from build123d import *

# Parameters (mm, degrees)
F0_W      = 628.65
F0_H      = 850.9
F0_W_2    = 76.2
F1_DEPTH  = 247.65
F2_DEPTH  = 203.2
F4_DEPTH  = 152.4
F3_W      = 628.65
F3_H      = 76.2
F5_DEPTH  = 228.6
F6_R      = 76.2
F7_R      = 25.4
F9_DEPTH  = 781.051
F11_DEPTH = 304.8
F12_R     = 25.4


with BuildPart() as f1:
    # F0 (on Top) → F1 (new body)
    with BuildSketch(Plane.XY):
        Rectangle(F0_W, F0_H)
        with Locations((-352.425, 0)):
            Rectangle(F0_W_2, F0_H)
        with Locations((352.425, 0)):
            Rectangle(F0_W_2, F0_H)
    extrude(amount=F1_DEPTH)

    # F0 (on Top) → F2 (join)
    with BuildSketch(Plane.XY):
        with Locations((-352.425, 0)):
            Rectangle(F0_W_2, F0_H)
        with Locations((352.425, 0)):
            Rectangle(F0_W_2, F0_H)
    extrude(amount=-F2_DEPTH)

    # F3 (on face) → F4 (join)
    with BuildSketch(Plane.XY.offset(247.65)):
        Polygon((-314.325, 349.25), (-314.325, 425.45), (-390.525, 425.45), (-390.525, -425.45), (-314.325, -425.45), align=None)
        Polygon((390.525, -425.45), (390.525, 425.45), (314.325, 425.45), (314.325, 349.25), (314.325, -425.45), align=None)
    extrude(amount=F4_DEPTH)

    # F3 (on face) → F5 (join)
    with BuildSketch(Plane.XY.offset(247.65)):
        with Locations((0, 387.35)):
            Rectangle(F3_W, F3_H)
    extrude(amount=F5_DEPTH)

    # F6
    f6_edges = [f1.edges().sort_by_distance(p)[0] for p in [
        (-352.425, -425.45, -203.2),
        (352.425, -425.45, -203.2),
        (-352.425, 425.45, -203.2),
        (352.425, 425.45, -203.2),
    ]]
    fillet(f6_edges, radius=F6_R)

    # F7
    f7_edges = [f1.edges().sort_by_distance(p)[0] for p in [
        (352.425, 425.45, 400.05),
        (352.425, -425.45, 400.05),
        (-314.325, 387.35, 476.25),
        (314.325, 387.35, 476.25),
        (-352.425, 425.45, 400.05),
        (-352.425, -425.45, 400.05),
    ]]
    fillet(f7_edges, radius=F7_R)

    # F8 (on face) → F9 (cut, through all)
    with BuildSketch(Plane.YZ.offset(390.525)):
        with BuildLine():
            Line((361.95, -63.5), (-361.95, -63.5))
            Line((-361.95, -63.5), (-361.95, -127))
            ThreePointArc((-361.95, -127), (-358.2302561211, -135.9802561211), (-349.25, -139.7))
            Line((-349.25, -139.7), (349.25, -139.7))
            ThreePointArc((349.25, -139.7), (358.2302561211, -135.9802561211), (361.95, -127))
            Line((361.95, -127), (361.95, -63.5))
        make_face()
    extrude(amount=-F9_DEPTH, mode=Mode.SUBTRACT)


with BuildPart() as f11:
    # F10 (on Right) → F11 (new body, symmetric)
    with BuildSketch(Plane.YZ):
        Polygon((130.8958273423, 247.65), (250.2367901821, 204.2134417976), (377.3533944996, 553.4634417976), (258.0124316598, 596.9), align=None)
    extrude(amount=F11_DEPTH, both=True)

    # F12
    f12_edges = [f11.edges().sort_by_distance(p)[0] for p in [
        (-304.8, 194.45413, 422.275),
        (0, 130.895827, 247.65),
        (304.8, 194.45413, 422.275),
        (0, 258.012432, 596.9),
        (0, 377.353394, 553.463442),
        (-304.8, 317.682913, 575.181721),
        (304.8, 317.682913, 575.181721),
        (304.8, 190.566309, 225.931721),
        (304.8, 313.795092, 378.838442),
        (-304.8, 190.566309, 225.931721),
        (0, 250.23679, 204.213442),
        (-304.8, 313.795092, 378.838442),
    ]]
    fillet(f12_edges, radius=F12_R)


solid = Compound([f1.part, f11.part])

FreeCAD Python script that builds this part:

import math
import FreeCAD as App
import Part
import Sketcher
Q = App.Units.Quantity


def edges_at(feature, points):
    """Names of the edges that pass closest to the given points."""
    edges = feature.Shape.Edges
    near = lambda p: min(range(len(edges)), key=lambda i: edges[i].distToShape(Part.Vertex(*p))[0])
    return sorted({f"Edge{near(p) + 1}" for p in points})


def add_polygon(sketch, points):
    """Adds a closed chain of lines whose ends are joined by coincident constraints."""
    first, n = sketch.GeometryCount, len(points)
    for a, b in zip(points, points[1:] + points[:1]):
        sketch.addGeometry(Part.LineSegment(App.Vector(*a, 0), App.Vector(*b, 0)), False)
    for i in range(n):
        sketch.addConstraint(Sketcher.Constraint("Coincident", first + i, 2, first + (i + 1) % n, 1))

doc = App.newDocument("Part")
body = doc.addObject("PartDesign::Body", "Body")

sketch1 = body.newObject("Sketcher::SketchObject", "Sketch")
sketch1.AttachmentSupport = (doc.getObject("XY_Plane"), [""])
sketch1.MapMode = "FlatFace"
add_polygon(sketch1, [(-391, 425), (-391, -425), (391, -425), (391, 425)])
sketch1.addConstraint(Sketcher.Constraint("Vertical", 0))
sketch1.addConstraint(Sketcher.Constraint("Horizontal", 1))
sketch1.addConstraint(Sketcher.Constraint("Vertical", 2))
sketch1.addConstraint(Sketcher.Constraint("Horizontal", 3))
sketch1.addConstraint(Sketcher.Constraint("Symmetric", 0, 2, 2, 2, -1, 1))
sketch1.addConstraint(Sketcher.Constraint("DistanceY", 0, 2, 0, 1, Q("33.5 in")))
sketch1.addConstraint(Sketcher.Constraint("DistanceX", 1, 1, 1, 2, Q("30.75 in")))
pad1 = body.newObject("PartDesign::Pad", "Pad")
pad1.Profile = sketch1
pad1.Length = Q("9.75 in")

sketch2 = body.newObject("Sketcher::SketchObject", "Sketch001")
sketch2.AttachmentSupport = (doc.getObject("XY_Plane"), [""])
sketch2.MapMode = "FlatFace"
add_polygon(sketch2, [(-391, 425), (-391, -425), (-314, -425), (-314, 425)])
add_polygon(sketch2, [(314, 425), (314, -425), (391, -425), (391, 425)])
sketch2.addConstraint(Sketcher.Constraint("Vertical", 0))
sketch2.addConstraint(Sketcher.Constraint("Horizontal", 1))
sketch2.addConstraint(Sketcher.Constraint("Vertical", 2))
sketch2.addConstraint(Sketcher.Constraint("Horizontal", 3))
sketch2.addConstraint(Sketcher.Constraint("Vertical", 4))
sketch2.addConstraint(Sketcher.Constraint("Horizontal", 5))
sketch2.addConstraint(Sketcher.Constraint("Vertical", 6))
sketch2.addConstraint(Sketcher.Constraint("Horizontal", 7))
sketch2.addConstraint(Sketcher.Constraint("Symmetric", 2, 2, 4, 2, -1, 1))
sketch2.addConstraint(Sketcher.Constraint("Symmetric", 0, 2, 6, 2, -1, 1))
sketch2.addConstraint(Sketcher.Constraint("Horizontal", 1, 2, 4, 2))
sketch2.addConstraint(Sketcher.Constraint("DistanceX", 1, 1, 1, 2, Q("3 in")))
sketch2.addConstraint(Sketcher.Constraint("DistanceY", 0, 2, 0, 1, Q("33.5 in")))
sketch2.addConstraint(Sketcher.Constraint("DistanceX", 1, 2, 4, 2, Q("24.75 in")))
pad2 = body.newObject("PartDesign::Pad", "Pad001")
pad2.Profile = sketch2
pad2.Length = Q("8 in")
pad2.Reversed = True

sketch3 = body.newObject("Sketcher::SketchObject", "Sketch002")
sketch3.AttachmentSupport = (doc.getObject("XY_Plane"), [""])
sketch3.MapMode = "FlatFace"
sketch3.AttachmentOffset = App.Placement(App.Vector(0, 0, 9.75 * 25.4), App.Rotation())
add_polygon(sketch3, [(-314, 425), (-391, 425), (-391, -425), (-314, -425)])
add_polygon(sketch3, [(391, -425), (391, 425), (314, 425), (314, -425)])
sketch3.addConstraint(Sketcher.Constraint("Horizontal", 0))
sketch3.addConstraint(Sketcher.Constraint("Vertical", 1))
sketch3.addConstraint(Sketcher.Constraint("Horizontal", 2))
sketch3.addConstraint(Sketcher.Constraint("Vertical", 3))
sketch3.addConstraint(Sketcher.Constraint("Vertical", 4))
sketch3.addConstraint(Sketcher.Constraint("Horizontal", 5))
sketch3.addConstraint(Sketcher.Constraint("Vertical", 6))
sketch3.addConstraint(Sketcher.Constraint("Horizontal", 7))
sketch3.addConstraint(Sketcher.Constraint("Symmetric", 1, 2, 4, 2, -1, 1))
sketch3.addConstraint(Sketcher.Constraint("Symmetric", 3, 2, 6, 2, -1, 1))
sketch3.addConstraint(Sketcher.Constraint("Horizontal", 3, 2, 4, 2))
sketch3.addConstraint(Sketcher.Constraint("DistanceX", 0, 2, 0, 1, Q("3 in")))
sketch3.addConstraint(Sketcher.Constraint("DistanceY", 1, 2, 1, 1, Q("33.5 in")))
sketch3.addConstraint(Sketcher.Constraint("DistanceX", 3, 2, 4, 2, Q("27.75 in")))
pad3 = body.newObject("PartDesign::Pad", "Pad002")
pad3.Profile = sketch3
pad3.Length = Q("6 in")

sketch4 = body.newObject("Sketcher::SketchObject", "Sketch003")
sketch4.AttachmentSupport = (doc.getObject("XY_Plane"), [""])
sketch4.MapMode = "FlatFace"
sketch4.AttachmentOffset = App.Placement(App.Vector(0, 0, 9.75 * 25.4), App.Rotation())
add_polygon(sketch4, [(-314, 425), (-314, 349), (314, 349), (314, 425)])
sketch4.addConstraint(Sketcher.Constraint("Vertical", 0))
sketch4.addConstraint(Sketcher.Constraint("Horizontal", 1))
sketch4.addConstraint(Sketcher.Constraint("Vertical", 2))
sketch4.addConstraint(Sketcher.Constraint("Horizontal", 3))
sketch4.addConstraint(Sketcher.Constraint("DistanceY", 0, 2, 0, 1, Q("3 in")))
sketch4.addConstraint(Sketcher.Constraint("DistanceX", 1, 1, 1, 2, Q("24.75 in")))
sketch4.addConstraint(Sketcher.Constraint("DistanceY", -1, 1, 0, 2, Q("13.75 in")))
sketch4.addConstraint(Sketcher.Constraint("DistanceX", 0, 2, -1, 1, Q("12.375 in")))
pad4 = body.newObject("PartDesign::Pad", "Pad003")
pad4.Profile = sketch4
pad4.Length = Q("9 in")
doc.recompute()

fillet = body.newObject("PartDesign::Fillet", "Fillet")
fillet.Base = (pad4, edges_at(pad4, [
    (-352.425, -425.45, -203.2),
    (352.425, -425.45, -203.2),
    (-352.425, 425.45, -203.2),
    (352.425, 425.45, -203.2),
]))
fillet.Radius = Q("3 in")
doc.recompute()

fillet2 = body.newObject("PartDesign::Fillet", "Fillet001")
fillet2.Base = (fillet, edges_at(fillet, [
    (352.425, 425.45, 400.05),
    (352.425, -425.45, 400.05),
    (-314.325, 387.35, 476.25),
    (314.325, 387.35, 476.25),
    (-352.425, 425.45, 400.05),
    (-352.425, -425.45, 400.05),
]))
fillet2.Radius = Q("1 in")

sketch5 = body.newObject("Sketcher::SketchObject", "Sketch004")
sketch5.AttachmentSupport = (doc.getObject("YZ_Plane"), [""])
sketch5.MapMode = "FlatFace"
sketch5.AttachmentOffset = App.Placement(App.Vector(0, 0, 15.375 * 25.4), App.Rotation())
sketch5.addGeometry(Part.LineSegment(App.Vector(362, -64, 0), App.Vector(-362, -64, 0)), False)
sketch5.addGeometry(Part.LineSegment(App.Vector(-362, -64, 0), App.Vector(-362, -127, 0)), False)
sketch5.addGeometry(Part.ArcOfCircle(Part.Circle(App.Vector(-349, -127, 0), App.Vector(0, 0, 1), 13), math.radians(180), math.radians(270)), False)
sketch5.addGeometry(Part.LineSegment(App.Vector(-349, -140, 0), App.Vector(349, -140, 0)), False)
sketch5.addGeometry(Part.ArcOfCircle(Part.Circle(App.Vector(349, -127, 0), App.Vector(0, 0, 1), 13), math.radians(-90), math.radians(0)), False)
sketch5.addGeometry(Part.LineSegment(App.Vector(362, -127, 0), App.Vector(362, -64, 0)), False)
sketch5.addConstraint(Sketcher.Constraint("Coincident", 0, 2, 1, 1))
sketch5.addConstraint(Sketcher.Constraint("Tangent", 1, 2, 2, 1))
sketch5.addConstraint(Sketcher.Constraint("Tangent", 2, 2, 3, 1))
sketch5.addConstraint(Sketcher.Constraint("Tangent", 3, 2, 4, 1))
sketch5.addConstraint(Sketcher.Constraint("Tangent", 4, 2, 5, 1))
sketch5.addConstraint(Sketcher.Constraint("Coincident", 5, 2, 0, 1))
sketch5.addConstraint(Sketcher.Constraint("Horizontal", 0))
sketch5.addConstraint(Sketcher.Constraint("Vertical", 1))
sketch5.addConstraint(Sketcher.Constraint("Horizontal", 3))
sketch5.addConstraint(Sketcher.Constraint("Vertical", 5))
sketch5.addConstraint(Sketcher.Constraint("Equal", 2, 4))
sketch5.addConstraint(Sketcher.Constraint("Radius", 2, Q("0.5 in")))
sketch5.addConstraint(Sketcher.Constraint("DistanceX", 0, 2, 0, 1, Q("28.5 in")))
sketch5.addConstraint(Sketcher.Constraint("DistanceY", 1, 2, 1, 1, Q("2.5 in")))
sketch5.addConstraint(Sketcher.Constraint("DistanceY", 2, 3, -1, 1, Q("5 in")))
sketch5.addConstraint(Sketcher.Constraint("DistanceX", 2, 3, -1, 1, Q("13.75 in")))
pocket1 = body.newObject("PartDesign::Pocket", "Pocket")
pocket1.Profile = sketch5
pocket1.Type = "ThroughAll"
body2 = doc.addObject("PartDesign::Body", "Body001")

sketch6 = body2.newObject("Sketcher::SketchObject", "Sketch005")
sketch6.AttachmentSupport = (doc.getObject("YZ_Plane001"), [""])
sketch6.MapMode = "FlatFace"
add_polygon(sketch6, [(131, 248), (250, 204), (377, 553), (258, 597)])
sketch6.addConstraint(Sketcher.Constraint("Perpendicular", 0, 1))
sketch6.addConstraint(Sketcher.Constraint("Perpendicular", 1, 2))
sketch6.addConstraint(Sketcher.Constraint("Perpendicular", 2, 3))
sketch6.addConstraint(Sketcher.Constraint("Distance", 0, Q("5 in")))
sketch6.addConstraint(Sketcher.Constraint("Angle", 0, Q("-20 deg")))
sketch6.addConstraint(Sketcher.Constraint("DistanceY", -1, 1, 2, 2, Q("23.5 in")))
sketch6.addConstraint(Sketcher.Constraint("DistanceY", -1, 1, 3, 2, Q("9.75 in")))
sketch6.addConstraint(Sketcher.Constraint("DistanceX", -1, 1, 0, 2, 250.23679))
pad5 = body2.newObject("PartDesign::Pad", "Pad004")
pad5.Profile = sketch6
pad5.Length = Q("24 in")
pad5.Midplane = True
doc.recompute()

fillet3 = body2.newObject("PartDesign::Fillet", "Fillet002")
fillet3.Base = (pad5, ["Edge1"])
fillet3.UseAllEdges = True
fillet3.Radius = Q("1 in")

doc.recompute()
